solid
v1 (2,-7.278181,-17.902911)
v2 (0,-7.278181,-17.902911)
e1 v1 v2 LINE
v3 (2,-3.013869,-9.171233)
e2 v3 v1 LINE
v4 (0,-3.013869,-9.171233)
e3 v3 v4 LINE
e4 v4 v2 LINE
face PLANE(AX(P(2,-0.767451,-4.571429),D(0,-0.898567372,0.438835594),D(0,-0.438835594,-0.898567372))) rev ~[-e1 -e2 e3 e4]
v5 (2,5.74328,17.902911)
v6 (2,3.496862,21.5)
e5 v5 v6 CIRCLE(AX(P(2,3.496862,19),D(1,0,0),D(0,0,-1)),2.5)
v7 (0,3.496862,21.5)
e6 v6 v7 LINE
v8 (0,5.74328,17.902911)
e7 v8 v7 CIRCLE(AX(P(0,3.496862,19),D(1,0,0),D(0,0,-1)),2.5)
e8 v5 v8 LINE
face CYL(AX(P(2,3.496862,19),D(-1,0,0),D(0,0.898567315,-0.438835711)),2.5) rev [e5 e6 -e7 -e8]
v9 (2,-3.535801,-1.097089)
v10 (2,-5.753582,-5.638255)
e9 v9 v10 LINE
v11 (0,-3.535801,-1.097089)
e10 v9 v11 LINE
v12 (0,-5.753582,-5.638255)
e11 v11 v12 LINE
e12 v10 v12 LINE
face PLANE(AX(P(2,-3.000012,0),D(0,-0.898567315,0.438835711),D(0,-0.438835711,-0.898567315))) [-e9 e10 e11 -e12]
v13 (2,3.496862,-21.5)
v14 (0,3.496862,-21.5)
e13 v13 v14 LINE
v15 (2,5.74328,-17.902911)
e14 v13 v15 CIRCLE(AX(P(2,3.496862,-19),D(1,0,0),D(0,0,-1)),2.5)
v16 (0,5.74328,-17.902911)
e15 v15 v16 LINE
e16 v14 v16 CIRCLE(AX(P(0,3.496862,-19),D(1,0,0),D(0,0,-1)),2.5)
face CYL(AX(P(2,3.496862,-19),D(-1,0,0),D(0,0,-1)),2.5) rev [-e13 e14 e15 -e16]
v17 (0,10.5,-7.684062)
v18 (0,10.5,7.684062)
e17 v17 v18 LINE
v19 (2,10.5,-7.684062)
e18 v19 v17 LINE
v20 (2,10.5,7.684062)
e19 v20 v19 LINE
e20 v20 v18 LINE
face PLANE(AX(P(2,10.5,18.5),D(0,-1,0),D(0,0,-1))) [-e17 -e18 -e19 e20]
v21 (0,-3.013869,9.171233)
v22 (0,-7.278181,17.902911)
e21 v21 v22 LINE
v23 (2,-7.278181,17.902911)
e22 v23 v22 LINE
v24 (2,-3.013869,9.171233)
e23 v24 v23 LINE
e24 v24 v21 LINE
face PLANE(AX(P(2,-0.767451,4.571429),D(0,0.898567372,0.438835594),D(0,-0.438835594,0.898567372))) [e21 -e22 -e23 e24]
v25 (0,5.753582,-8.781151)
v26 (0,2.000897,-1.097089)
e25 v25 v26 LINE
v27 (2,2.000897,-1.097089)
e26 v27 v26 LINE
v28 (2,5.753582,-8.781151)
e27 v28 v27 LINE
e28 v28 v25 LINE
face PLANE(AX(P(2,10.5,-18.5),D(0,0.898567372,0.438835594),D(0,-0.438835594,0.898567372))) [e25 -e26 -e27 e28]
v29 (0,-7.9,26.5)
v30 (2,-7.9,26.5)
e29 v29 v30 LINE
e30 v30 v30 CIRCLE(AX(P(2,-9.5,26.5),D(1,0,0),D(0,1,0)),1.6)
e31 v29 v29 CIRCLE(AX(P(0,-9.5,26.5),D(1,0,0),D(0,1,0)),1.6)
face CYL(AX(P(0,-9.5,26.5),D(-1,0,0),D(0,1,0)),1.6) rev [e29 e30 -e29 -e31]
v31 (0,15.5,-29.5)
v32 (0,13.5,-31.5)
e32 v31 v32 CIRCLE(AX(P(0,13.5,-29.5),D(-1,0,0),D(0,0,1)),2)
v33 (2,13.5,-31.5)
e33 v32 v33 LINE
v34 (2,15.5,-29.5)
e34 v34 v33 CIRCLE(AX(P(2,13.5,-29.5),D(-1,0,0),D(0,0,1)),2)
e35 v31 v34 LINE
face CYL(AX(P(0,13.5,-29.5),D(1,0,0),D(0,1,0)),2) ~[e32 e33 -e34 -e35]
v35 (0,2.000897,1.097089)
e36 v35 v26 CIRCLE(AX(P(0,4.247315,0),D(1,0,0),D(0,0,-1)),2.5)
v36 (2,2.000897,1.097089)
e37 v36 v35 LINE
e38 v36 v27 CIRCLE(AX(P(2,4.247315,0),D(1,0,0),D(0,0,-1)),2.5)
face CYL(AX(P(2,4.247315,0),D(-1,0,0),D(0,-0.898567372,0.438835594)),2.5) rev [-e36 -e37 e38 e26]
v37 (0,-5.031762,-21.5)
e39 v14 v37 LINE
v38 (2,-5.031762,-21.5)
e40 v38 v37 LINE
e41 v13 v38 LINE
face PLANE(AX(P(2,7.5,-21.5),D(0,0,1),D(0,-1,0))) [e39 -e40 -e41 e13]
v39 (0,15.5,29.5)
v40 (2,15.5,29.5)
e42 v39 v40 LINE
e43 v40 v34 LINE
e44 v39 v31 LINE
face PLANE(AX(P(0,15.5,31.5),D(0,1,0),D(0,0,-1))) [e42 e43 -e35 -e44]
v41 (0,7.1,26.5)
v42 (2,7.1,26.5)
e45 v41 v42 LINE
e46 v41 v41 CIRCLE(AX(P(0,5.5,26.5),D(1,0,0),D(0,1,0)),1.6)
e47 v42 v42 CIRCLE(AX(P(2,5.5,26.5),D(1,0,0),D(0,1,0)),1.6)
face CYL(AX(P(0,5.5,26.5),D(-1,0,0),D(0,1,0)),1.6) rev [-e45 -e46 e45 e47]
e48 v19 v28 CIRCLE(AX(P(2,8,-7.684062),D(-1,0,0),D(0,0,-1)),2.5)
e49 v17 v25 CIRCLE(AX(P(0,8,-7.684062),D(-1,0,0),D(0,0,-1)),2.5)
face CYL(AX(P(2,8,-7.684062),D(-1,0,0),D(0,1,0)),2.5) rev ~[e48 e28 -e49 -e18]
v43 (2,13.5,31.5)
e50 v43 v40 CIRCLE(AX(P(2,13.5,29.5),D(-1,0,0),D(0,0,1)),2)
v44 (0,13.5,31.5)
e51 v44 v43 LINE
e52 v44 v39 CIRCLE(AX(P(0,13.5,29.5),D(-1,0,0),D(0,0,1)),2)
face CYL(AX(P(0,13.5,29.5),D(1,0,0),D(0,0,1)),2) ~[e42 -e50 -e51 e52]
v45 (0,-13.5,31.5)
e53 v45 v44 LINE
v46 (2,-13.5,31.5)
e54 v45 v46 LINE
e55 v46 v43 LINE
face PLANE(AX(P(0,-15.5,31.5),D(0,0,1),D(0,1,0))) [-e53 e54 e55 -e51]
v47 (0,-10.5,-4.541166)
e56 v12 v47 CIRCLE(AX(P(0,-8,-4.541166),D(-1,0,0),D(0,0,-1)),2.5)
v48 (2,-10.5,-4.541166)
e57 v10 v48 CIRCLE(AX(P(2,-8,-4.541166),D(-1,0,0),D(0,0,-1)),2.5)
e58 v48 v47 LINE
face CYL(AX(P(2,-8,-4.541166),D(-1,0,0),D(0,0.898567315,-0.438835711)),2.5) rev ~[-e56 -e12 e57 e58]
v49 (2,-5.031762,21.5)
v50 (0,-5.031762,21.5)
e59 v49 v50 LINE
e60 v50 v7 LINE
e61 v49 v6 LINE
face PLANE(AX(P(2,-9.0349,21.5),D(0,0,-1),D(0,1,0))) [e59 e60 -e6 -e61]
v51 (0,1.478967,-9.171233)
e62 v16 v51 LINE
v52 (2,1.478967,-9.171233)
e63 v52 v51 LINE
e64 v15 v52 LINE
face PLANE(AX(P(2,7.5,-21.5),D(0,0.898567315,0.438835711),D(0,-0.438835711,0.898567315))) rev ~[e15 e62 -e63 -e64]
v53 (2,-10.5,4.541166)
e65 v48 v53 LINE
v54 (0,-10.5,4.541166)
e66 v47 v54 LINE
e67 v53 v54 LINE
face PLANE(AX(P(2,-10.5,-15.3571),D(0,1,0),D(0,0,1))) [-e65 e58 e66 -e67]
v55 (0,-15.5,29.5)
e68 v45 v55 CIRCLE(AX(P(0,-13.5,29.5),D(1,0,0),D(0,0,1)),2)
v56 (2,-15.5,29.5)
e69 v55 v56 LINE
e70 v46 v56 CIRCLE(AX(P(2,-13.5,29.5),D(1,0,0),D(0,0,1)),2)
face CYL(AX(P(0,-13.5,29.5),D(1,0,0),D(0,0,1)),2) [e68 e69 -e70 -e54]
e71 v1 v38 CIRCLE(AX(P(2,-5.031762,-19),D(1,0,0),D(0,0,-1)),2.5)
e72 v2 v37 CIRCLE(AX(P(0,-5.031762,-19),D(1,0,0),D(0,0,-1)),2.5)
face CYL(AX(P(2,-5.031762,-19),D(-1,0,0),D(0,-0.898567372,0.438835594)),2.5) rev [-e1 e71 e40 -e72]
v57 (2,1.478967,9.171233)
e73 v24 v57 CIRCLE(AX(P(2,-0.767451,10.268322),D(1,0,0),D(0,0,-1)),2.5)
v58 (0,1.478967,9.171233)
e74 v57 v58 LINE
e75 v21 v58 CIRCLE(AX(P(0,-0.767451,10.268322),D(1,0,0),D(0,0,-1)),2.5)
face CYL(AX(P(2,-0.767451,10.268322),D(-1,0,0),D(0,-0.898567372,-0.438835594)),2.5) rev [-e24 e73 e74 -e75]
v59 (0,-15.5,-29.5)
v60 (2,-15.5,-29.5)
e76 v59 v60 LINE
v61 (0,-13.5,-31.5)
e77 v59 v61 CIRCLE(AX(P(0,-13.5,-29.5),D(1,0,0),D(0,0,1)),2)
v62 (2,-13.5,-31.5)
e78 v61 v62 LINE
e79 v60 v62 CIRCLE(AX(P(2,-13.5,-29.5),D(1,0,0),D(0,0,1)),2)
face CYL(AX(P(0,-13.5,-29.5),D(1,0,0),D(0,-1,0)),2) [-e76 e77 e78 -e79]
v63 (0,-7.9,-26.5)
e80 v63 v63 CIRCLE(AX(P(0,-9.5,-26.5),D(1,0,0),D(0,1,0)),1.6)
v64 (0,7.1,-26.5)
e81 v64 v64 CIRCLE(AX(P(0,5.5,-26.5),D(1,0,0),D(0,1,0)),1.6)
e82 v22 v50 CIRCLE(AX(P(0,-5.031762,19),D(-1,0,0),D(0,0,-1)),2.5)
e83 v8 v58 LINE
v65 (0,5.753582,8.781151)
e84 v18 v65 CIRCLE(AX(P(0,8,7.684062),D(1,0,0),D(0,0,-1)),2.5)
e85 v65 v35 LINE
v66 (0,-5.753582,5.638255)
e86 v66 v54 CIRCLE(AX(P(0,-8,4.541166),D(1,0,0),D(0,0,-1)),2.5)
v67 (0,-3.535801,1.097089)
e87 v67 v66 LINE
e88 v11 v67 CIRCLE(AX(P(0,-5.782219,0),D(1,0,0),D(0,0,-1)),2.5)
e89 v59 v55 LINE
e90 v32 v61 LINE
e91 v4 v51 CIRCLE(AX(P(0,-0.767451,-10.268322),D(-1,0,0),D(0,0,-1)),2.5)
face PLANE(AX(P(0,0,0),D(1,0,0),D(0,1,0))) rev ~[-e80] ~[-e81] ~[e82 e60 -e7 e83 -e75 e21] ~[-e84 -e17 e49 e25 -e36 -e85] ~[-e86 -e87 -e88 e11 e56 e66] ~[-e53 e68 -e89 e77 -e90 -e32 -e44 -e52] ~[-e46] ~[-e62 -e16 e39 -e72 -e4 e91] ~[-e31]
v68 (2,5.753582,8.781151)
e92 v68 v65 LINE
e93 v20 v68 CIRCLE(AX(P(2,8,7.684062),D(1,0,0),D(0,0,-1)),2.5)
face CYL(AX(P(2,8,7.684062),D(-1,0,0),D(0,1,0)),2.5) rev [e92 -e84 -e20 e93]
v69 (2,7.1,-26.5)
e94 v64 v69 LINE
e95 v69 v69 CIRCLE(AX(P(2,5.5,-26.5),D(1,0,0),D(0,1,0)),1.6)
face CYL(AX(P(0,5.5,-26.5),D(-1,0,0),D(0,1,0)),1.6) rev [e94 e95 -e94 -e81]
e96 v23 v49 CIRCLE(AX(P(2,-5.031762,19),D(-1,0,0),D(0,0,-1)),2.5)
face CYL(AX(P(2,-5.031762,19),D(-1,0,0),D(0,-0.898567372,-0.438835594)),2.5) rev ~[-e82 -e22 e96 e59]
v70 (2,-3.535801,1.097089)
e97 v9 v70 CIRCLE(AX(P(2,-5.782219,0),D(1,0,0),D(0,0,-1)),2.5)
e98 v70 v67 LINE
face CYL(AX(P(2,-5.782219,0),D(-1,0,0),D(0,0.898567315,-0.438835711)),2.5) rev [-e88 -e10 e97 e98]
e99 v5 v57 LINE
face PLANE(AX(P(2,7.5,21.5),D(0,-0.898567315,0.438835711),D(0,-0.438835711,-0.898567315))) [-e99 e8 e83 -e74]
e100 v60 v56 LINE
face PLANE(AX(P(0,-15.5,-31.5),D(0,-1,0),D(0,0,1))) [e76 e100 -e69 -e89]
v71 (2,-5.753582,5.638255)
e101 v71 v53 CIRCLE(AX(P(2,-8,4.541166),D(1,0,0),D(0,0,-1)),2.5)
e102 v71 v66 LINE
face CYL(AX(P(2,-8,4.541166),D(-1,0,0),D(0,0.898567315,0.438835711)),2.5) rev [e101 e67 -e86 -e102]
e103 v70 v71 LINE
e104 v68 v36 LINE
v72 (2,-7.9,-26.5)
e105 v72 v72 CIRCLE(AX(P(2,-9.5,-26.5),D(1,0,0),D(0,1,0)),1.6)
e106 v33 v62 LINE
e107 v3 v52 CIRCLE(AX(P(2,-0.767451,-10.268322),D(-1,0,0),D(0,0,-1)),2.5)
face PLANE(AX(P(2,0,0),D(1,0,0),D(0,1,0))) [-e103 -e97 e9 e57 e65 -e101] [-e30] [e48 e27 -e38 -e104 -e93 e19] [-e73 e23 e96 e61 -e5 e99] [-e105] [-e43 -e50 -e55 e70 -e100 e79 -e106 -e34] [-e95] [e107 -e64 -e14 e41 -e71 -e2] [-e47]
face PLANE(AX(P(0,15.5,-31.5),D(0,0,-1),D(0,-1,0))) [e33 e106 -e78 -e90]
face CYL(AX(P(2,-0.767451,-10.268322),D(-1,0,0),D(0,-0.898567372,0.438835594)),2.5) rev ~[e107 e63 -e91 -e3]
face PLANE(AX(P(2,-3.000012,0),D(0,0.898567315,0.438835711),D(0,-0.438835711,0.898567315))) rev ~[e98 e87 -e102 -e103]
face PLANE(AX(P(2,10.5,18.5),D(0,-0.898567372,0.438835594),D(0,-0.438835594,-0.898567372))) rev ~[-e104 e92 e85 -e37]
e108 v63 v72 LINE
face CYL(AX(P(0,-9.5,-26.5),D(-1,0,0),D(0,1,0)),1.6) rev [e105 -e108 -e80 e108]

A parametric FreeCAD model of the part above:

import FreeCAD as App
import Part
import Sketcher
Q = App.Units.Quantity


def edges_at(feature, points):
    """Names of the edges that pass closest to the given points."""
    edges = feature.Shape.Edges
    near = lambda p: min(range(len(edges)), key=lambda i: edges[i].distToShape(Part.Vertex(*p))[0])
    return sorted({f"Edge{near(p) + 1}" for p in points})

doc = App.newDocument("Part")
body = doc.addObject("PartDesign::Body", "Body")

sketch1 = body.newObject("Sketcher::SketchObject", "Sketch")
sketch1.AttachmentSupport = (doc.getObject("YZ_Plane"), [""])
sketch1.MapMode = "FlatFace"
sketch1.addGeometry([
    Part.LineSegment(App.Vector(15.5, 31.5, 0), App.Vector(-15.5, 31.5, 0)),
    Part.LineSegment(App.Vector(-15.5, 31.5, 0), App.Vector(-15.5, -31.5, 0)),
    Part.LineSegment(App.Vector(-15.5, -31.5, 0), App.Vector(15.5, -31.5, 0)),
    Part.LineSegment(App.Vector(15.5, -31.5, 0), App.Vector(15.5, 31.5, 0)),
    Part.Circle(App.Vector(-9.5, -26.5, 0), App.Vector(0, 0, 1), 1.6),
    Part.Circle(App.Vector(5.5, -26.5, 0), App.Vector(0, 0, 1), 1.6),
    Part.Circle(App.Vector(-9.5, 26.5, 0), App.Vector(0, 0, 1), 1.6),
    Part.Circle(App.Vector(5.5, 26.5, 0), App.Vector(0, 0, 1), 1.6),
], False)
sketch1.addConstraint([
    Sketcher.Constraint("Coincident", 0, 2, 1, 1),
    Sketcher.Constraint("Coincident", 1, 2, 2, 1),
    Sketcher.Constraint("Coincident", 2, 2, 3, 1),
    Sketcher.Constraint("Coincident", 3, 2, 0, 1),
    Sketcher.Constraint("Horizontal", 0),
    Sketcher.Constraint("Vertical", 1),
    Sketcher.Constraint("Horizontal", 2),
    Sketcher.Constraint("Vertical", 3),
    Sketcher.Constraint("Equal", 4, 5),
    Sketcher.Constraint("Equal", 5, 6),
    Sketcher.Constraint("Equal", 6, 7),
    Sketcher.Constraint("Symmetric", 0, 2, 2, 2, -1, 1),
    Sketcher.Constraint("Symmetric", 4, 3, 6, 3, -1),
    Sketcher.Constraint("Symmetric", 5, 3, 7, 3, -1),
    Sketcher.Constraint("Horizontal", 4, 3, 5, 3),
    Sketcher.Constraint("Diameter", 4, 3.2),
    Sketcher.Constraint("DistanceX", 0, 2, 0, 1, 31.0),
    Sketcher.Constraint("DistanceY", 1, 2, 1, 1, 63.0),
    Sketcher.Constraint("DistanceX", 4, 3, 5, 3, 15.0),
    Sketcher.Constraint("DistanceY", 6, 3, 0, 2, 5.0),
    Sketcher.Constraint("DistanceX", 0, 2, 7, 3, 21.0),
])
pad1 = body.newObject("PartDesign::Pad", "Pad")
pad1.Profile = sketch1
pad1.Length = 2
doc.recompute()

fillet = body.newObject("PartDesign::Fillet", "Fillet")
fillet.Base = (pad1, edges_at(pad1, [
    (1, 15.5, 31.5),
    (1, -15.5, 31.5),
    (1, -15.5, -31.5),
    (1, 15.5, -31.5),
]))
fillet.Radius = 2

sketch2 = body.newObject("Sketcher::SketchObject", "Sketch001")
sketch2.AttachmentSupport = (doc.getObject("YZ_Plane"), [""])
sketch2.MapMode = "FlatFace"
sketch2.AttachmentOffset = App.Placement(App.Vector(0, 0, 2), App.Rotation())
sketch2.addGeometry([
    Part.LineSegment(App.Vector(-10, 15, 0), App.Vector(-10, -15, 0)),
    Part.LineSegment(App.Vector(-10, -15, 0), App.Vector(-3, 0, 0)),
    Part.LineSegment(App.Vector(-3, 0, 0), App.Vector(-10, 15, 0)),
    Part.LineSegment(App.Vector(-1, -5, 0), App.Vector(-9, -22, 0)),
    Part.LineSegment(App.Vector(-9, -22, 0), App.Vector(8, -22, 0)),
    Part.LineSegment(App.Vector(8, -22, 0), App.Vector(-1, -5, 0)),
    Part.LineSegment(App.Vector(8, 22, 0), App.Vector(-9, 22, 0)),
    Part.LineSegment(App.Vector(-9, 22, 0), App.Vector(-1, 5, 0)),
    Part.LineSegment(App.Vector(-1, 5, 0), App.Vector(8, 22, 0)),
    Part.LineSegment(App.Vector(1, 0, 0), App.Vector(10, -18, 0)),
    Part.LineSegment(App.Vector(10, -18, 0), App.Vector(10, 18, 0)),
    Part.LineSegment(App.Vector(10, 18, 0), App.Vector(1, 0, 0)),
], False)
sketch2.addConstraint([
    Sketcher.Constraint("Coincident", 0, 2, 1, 1),
    Sketcher.Constraint("Coincident", 1, 2, 2, 1),
    Sketcher.Constraint("Coincident", 2, 2, 0, 1),
    Sketcher.Constraint("Coincident", 3, 2, 4, 1),
    Sketcher.Constraint("Coincident", 4, 2, 5, 1),
    Sketcher.Constraint("Coincident", 5, 2, 3, 1),
    Sketcher.Constraint("Coincident", 6, 2, 7, 1),
    Sketcher.Constraint("Coincident", 7, 2, 8, 1),
    Sketcher.Constraint("Coincident", 8, 2, 6, 1),
    Sketcher.Constraint("Coincident", 9, 2, 10, 1),
    Sketcher.Constraint("Coincident", 10, 2, 11, 1),
    Sketcher.Constraint("Coincident", 11, 2, 9, 1),
    Sketcher.Constraint("Vertical", 0),
    Sketcher.Constraint("Horizontal", 4),
    Sketcher.Constraint("Horizontal", 6),
    Sketcher.Constraint("Vertical", 10),
    Sketcher.Constraint("Symmetric", 3, 2, 6, 2, -1),
    Sketcher.Constraint("Symmetric", 5, 2, 7, 2, -1),
    Sketcher.Constraint("PointOnObject", 1, 2, -1),
    Sketcher.Constraint("PointOnObject", 11, 2, -1),
    Sketcher.Constraint("Parallel", 1, 3),
    Sketcher.Constraint("Parallel", 2, 5),
    Sketcher.Constraint("Parallel", 5, 7),
    Sketcher.Constraint("Parallel", 3, 8),
    Sketcher.Constraint("Parallel", 7, 9),
    Sketcher.Constraint("Parallel", 8, 11),
    Sketcher.Constraint("DistanceX", 1, 2, -1, 1, 3.0),
    Sketcher.Constraint("DistanceX", 4, 2, 9, 2, 3.0),
    Sketcher.Constraint("DistanceY", 4, 2, 9, 2, 3.0),
    Sketcher.Constraint("DistanceY", 10, 1, 10, 2, 37.0),
    Sketcher.Constraint("DistanceX", 0, 2, 4, 2, 18.0),
    Sketcher.Constraint("DistanceX", 0, 2, -1, 1, 10.5),
    Sketcher.Constraint("Angle", 1, Q("63.9704 deg")),
    Sketcher.Constraint("DistanceX", 4, 1, 4, 2, 16.535),
])
pocket1 = body.newObject("PartDesign::Pocket", "Pocket")
pocket1.Profile = sketch2
pocket1.Length = 2
doc.recompute()

fillet2 = body.newObject("PartDesign::Fillet", "Fillet001")
fillet2.Base = (pocket1, edges_at(pocket1, [
    (1, 7.5, 21.5),
    (1, 10.5, 18.5),
    (1, 10.5, -18.5),
    (1, 7.5, -21.5),
    (1, -9.035, -21.5),
    (1, -10.5, -15.357),
    (1, -3, 0),
    (1, 1.465, 0),
    (1, -0.767, -4.571),
    (1, -0.767, 4.571),
    (1, -10.5, 15.357),
    (1, -9.035, 21.5),
]))
fillet2.Radius = 2.5

doc.recompute()
